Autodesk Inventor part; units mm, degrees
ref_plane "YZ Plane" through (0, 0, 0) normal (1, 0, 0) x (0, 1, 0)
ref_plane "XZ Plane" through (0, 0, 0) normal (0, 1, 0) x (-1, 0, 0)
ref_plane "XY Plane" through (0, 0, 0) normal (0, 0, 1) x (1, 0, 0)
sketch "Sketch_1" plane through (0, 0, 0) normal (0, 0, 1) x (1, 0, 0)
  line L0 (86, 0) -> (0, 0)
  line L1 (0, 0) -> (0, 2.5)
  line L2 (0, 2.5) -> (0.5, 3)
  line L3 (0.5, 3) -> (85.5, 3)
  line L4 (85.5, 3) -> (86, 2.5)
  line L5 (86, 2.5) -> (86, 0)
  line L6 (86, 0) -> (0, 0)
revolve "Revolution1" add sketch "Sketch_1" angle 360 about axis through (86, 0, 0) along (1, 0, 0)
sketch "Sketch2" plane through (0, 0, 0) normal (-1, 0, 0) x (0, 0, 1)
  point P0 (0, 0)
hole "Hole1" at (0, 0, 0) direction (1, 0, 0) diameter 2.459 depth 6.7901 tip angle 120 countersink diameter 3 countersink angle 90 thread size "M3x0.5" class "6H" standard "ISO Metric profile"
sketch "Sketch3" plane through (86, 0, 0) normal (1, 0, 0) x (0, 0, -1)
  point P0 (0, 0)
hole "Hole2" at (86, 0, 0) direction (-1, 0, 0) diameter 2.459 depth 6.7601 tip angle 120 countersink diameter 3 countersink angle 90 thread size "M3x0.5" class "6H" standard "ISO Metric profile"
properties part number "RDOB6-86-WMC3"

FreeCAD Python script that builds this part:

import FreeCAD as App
import Part
import Sketcher
Q = App.Units.Quantity

doc = App.newDocument("Part")
body = doc.addObject("PartDesign::Body", "Body")

# Sketch on XY plane
sketch1 = doc.addObject("Sketcher::SketchObject", "Sketch")
body.addObject(sketch1)
sketch1.AttachmentSupport = (doc.XY_Plane, [""])
sketch1.MapMode = "FlatFace"
sketch1.addGeometry(Part.LineSegment(App.Vector(0, 0, 0), App.Vector(86, 0, 0)), False)
sketch1.addGeometry(Part.LineSegment(App.Vector(86, 0, 0), App.Vector(86, 2.5, 0)), False)
sketch1.addGeometry(Part.LineSegment(App.Vector(86, 2.5, 0), App.Vector(85.5, 3, 0)), False)
sketch1.addGeometry(Part.LineSegment(App.Vector(85.5, 3, 0), App.Vector(0.5, 3, 0)), False)
sketch1.addGeometry(Part.LineSegment(App.Vector(0.5, 3, 0), App.Vector(0, 2.5, 0)), False)
sketch1.addGeometry(Part.LineSegment(App.Vector(0, 2.5, 0), App.Vector(0, 0, 0)), False)
sketch1.addConstraint(Sketcher.Constraint("Coincident", 0, 2, 1, 1))
sketch1.addConstraint(Sketcher.Constraint("Coincident", 1, 2, 2, 1))
sketch1.addConstraint(Sketcher.Constraint("Coincident", 2, 2, 3, 1))
sketch1.addConstraint(Sketcher.Constraint("Coincident", 3, 2, 4, 1))
sketch1.addConstraint(Sketcher.Constraint("Coincident", 4, 2, 5, 1))
sketch1.addConstraint(Sketcher.Constraint("Coincident", 5, 2, 0, 1))
sketch1.addConstraint(Sketcher.Constraint("Horizontal", 0))
sketch1.addConstraint(Sketcher.Constraint("Vertical", 1))
sketch1.addConstraint(Sketcher.Constraint("Horizontal", 3))
sketch1.addConstraint(Sketcher.Constraint("Vertical", 5))
sketch1.addConstraint(Sketcher.Constraint("Coincident", 5, 2, -1, 1))
sketch1.addConstraint(Sketcher.Constraint("Perpendicular", 2, 4))
sketch1.addConstraint(Sketcher.Constraint("Horizontal", 1, 2, 4, 2))
sketch1.addConstraint(Sketcher.Constraint("Equal", 2, 4))
sketch1.addConstraint(Sketcher.Constraint("DistanceX", 0, 1, 0, 2, Q("86 mm")))
sketch1.addConstraint(Sketcher.Constraint("DistanceX", 3, 2, 3, 1, Q("85 mm")))
sketch1.addConstraint(Sketcher.Constraint("DistanceY", 1, 1, 1, 2, Q("2.5 mm")))
revolution = doc.addObject("PartDesign::Revolution", "Revolution")
body.addObject(revolution)
revolution.Profile = sketch1
revolution.ReferenceAxis = (sketch1, ["H_Axis"])
revolution.Angle = 360

# Sketch on YZ plane
sketch2 = doc.addObject("Sketcher::SketchObject", "Sketch001")
body.addObject(sketch2)
sketch2.AttachmentSupport = (doc.YZ_Plane, [""])
sketch2.MapMode = "FlatFace"
sketch2.addGeometry(Part.Circle(App.Vector(0, 0, 0), App.Vector(0, 0, 1), 1.2295), False)
sketch2.addConstraint(Sketcher.Constraint("Coincident", 0, 3, -1, 1))
sketch2.addConstraint(Sketcher.Constraint("Diameter", 0, Q("2.459 mm")))
doc.recompute()
hole = doc.addObject("PartDesign::Hole", "Hole")
body.addObject(hole)
hole.Profile = sketch2
hole.ThreadType = "None"
hole.Diameter = 2.459
hole.DepthType = "Dimension"
hole.Depth = 6.7901
hole.DrillPoint = "Angled"
hole.DrillPointAngle = 120
hole.HoleCutType = "Countersink"
hole.HoleCutDiameter = 3
hole.HoleCutCountersinkAngle = 90
hole.Reversed = True

# Sketch on YZ plane
sketch3 = doc.addObject("Sketcher::SketchObject", "Sketch002")
body.addObject(sketch3)
sketch3.AttachmentSupport = (doc.YZ_Plane, [""])
sketch3.MapMode = "FlatFace"
sketch3.AttachmentOffset = App.Placement(App.Vector(0, 0, 86), App.Rotation())
sketch3.addGeometry(Part.Circle(App.Vector(0, 0, 0), App.Vector(0, 0, 1), 1.2295), False)
sketch3.addConstraint(Sketcher.Constraint("Coincident", 0, 3, -1, 1))
sketch3.addConstraint(Sketcher.Constraint("Diameter", 0, Q("2.459 mm")))
doc.recompute()
hole2 = doc.addObject("PartDesign::Hole", "Hole001")
body.addObject(hole2)
hole2.Profile = sketch3
hole2.ThreadType = "None"
hole2.Diameter = 2.459
hole2.DepthType = "Dimension"
hole2.Depth = 6.7601
hole2.DrillPoint = "Angled"
hole2.DrillPointAngle = 120
hole2.HoleCutType = "Countersink"
hole2.HoleCutDiameter = 3
hole2.HoleCutCountersinkAngle = 90

doc.recompute()
